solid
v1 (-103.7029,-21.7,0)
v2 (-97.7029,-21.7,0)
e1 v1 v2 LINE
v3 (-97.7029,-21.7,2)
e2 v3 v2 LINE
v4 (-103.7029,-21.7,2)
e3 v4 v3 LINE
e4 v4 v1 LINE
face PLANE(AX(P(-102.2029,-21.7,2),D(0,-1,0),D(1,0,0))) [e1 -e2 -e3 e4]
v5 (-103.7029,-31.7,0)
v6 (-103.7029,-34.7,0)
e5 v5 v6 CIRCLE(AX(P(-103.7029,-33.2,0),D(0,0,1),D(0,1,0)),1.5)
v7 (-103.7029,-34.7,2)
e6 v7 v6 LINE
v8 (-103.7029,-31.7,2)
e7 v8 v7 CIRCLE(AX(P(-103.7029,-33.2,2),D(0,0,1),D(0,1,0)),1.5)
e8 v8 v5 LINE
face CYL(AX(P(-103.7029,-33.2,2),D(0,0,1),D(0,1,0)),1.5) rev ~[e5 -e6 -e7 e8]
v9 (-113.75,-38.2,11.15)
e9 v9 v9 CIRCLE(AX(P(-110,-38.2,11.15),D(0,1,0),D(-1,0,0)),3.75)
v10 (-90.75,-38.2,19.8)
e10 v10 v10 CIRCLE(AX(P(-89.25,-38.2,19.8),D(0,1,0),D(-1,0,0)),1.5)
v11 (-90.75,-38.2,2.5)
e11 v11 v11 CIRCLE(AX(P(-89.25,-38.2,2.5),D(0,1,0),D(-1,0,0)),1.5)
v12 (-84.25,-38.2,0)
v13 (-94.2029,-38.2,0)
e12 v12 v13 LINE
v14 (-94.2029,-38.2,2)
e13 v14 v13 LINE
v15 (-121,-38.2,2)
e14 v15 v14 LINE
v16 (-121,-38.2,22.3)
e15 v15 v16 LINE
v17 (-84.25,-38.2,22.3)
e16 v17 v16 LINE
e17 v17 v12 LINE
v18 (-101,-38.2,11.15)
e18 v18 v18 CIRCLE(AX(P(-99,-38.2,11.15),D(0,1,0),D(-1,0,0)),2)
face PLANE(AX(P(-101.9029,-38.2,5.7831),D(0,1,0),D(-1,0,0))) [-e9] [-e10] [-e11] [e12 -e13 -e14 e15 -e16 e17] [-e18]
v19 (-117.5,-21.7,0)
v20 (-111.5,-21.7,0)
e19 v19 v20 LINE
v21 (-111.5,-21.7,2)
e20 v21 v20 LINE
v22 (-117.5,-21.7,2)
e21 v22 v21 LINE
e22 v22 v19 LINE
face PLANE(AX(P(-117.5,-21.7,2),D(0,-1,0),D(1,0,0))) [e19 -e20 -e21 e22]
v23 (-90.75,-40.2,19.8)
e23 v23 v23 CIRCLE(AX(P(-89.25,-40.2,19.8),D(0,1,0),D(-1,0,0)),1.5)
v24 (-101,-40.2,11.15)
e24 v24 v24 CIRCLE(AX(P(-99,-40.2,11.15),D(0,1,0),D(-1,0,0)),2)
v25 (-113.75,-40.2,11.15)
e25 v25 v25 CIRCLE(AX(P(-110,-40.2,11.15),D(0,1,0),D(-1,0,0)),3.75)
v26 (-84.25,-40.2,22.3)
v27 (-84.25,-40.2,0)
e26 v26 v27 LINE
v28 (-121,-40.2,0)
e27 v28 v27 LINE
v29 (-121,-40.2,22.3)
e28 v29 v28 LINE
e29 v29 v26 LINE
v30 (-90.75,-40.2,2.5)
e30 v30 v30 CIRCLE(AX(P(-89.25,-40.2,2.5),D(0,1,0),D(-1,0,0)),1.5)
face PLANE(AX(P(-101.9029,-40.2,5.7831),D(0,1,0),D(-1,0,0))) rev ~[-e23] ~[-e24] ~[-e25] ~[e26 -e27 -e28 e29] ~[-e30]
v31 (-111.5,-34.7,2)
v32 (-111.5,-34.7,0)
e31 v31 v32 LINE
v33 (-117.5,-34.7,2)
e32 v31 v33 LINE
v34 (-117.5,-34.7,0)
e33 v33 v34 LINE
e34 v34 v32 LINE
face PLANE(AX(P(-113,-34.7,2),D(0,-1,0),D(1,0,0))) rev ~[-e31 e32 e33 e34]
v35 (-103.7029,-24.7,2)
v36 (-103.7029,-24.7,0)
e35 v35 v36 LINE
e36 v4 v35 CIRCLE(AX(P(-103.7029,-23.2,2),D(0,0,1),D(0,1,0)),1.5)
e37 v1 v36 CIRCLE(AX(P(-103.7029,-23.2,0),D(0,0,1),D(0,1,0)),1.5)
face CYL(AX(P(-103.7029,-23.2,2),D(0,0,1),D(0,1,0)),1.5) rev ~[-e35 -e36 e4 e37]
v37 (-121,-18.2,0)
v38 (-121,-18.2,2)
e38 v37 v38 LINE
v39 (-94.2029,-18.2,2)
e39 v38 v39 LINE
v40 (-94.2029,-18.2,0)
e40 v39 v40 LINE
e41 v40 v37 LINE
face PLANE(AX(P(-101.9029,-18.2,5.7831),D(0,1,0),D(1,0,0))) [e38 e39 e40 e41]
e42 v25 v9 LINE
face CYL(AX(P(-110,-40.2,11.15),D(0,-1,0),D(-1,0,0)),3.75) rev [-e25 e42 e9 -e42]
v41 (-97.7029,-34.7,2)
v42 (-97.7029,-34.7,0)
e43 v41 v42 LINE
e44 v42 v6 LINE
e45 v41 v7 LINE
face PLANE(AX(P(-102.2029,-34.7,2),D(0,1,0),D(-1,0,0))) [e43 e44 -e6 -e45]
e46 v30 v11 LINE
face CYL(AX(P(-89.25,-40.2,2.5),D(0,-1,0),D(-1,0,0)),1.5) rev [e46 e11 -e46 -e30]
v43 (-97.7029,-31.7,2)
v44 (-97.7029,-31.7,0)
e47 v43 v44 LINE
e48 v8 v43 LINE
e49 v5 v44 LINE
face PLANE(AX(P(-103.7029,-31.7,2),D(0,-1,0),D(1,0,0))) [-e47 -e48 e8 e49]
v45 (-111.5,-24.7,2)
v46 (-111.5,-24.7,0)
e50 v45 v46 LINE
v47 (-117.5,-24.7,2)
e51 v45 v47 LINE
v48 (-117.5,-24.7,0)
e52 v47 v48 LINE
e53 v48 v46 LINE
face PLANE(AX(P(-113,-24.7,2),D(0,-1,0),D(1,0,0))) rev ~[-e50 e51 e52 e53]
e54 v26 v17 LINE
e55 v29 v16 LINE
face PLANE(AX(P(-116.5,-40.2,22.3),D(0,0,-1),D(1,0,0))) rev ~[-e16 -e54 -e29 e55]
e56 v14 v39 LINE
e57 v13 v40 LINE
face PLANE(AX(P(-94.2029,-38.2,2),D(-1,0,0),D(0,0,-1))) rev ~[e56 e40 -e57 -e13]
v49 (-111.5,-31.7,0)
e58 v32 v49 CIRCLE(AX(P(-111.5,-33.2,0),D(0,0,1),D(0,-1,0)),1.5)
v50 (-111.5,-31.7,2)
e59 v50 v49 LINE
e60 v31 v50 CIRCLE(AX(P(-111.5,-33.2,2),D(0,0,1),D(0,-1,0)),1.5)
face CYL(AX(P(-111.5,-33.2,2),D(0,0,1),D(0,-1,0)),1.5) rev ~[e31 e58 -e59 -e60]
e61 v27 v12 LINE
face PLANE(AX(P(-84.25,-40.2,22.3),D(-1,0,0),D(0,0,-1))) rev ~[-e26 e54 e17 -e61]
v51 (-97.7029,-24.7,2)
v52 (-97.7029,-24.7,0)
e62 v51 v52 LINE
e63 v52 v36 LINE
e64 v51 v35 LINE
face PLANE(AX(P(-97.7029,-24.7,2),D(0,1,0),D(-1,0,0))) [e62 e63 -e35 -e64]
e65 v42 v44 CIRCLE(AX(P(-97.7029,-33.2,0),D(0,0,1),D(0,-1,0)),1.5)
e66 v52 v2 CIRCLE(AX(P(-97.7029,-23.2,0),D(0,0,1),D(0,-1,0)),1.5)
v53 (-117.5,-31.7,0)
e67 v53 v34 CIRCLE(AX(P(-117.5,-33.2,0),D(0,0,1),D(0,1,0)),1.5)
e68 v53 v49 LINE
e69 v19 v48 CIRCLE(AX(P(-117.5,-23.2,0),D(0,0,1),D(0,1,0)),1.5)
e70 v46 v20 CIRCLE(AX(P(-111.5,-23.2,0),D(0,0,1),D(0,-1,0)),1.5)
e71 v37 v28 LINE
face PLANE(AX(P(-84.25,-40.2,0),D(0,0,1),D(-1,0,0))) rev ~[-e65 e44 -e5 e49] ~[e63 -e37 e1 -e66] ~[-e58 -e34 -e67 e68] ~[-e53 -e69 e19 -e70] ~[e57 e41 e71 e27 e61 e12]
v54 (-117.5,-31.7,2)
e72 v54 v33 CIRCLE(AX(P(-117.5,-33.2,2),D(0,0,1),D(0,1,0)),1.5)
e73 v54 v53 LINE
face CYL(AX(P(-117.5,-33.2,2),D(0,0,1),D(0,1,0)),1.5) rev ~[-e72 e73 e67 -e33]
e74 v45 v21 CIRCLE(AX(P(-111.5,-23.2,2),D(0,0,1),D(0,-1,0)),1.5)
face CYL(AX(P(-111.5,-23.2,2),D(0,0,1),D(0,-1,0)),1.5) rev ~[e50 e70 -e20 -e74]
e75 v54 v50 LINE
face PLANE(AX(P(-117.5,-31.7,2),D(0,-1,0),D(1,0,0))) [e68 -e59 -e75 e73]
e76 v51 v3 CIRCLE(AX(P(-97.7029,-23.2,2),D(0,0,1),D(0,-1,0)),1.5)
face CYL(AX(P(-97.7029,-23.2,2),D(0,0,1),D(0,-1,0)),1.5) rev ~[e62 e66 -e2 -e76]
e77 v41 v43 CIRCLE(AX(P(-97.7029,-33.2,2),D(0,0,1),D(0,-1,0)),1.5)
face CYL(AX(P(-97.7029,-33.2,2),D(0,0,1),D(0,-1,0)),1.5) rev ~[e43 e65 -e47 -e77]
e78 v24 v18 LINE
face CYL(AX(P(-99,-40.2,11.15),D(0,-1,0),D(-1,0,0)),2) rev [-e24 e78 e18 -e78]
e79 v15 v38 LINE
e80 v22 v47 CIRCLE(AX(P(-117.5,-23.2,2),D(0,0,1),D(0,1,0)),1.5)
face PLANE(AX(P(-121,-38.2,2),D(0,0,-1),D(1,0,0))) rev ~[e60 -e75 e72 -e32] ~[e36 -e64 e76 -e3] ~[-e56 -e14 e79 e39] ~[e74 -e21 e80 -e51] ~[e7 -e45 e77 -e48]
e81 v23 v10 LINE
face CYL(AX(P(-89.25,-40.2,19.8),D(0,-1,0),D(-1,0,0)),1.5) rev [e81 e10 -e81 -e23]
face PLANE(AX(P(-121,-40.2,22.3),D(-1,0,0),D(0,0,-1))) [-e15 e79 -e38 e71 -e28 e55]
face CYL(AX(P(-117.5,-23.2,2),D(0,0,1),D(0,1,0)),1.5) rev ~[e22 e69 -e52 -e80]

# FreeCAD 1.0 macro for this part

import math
import FreeCAD as App
import Part
import Sketcher

V = App.Vector


def add_polygon(sketch, points):
    """Adds a closed chain of lines whose ends are joined by coincident constraints."""
    first, n = sketch.GeometryCount, len(points)
    for a, b in zip(points, points[1:] + points[:1]):
        sketch.addGeometry(Part.LineSegment(App.Vector(*a, 0), App.Vector(*b, 0)), False)
    for i in range(n):
        sketch.addConstraint(Sketcher.Constraint("Coincident", first + i, 2, first + (i + 1) % n, 1))

doc = App.newDocument("Part")
body = doc.addObject("PartDesign::Body", "Body")

# Sketch on XZ plane
sketch1 = body.newObject("Sketcher::SketchObject", "Sketch")
sketch1.AttachmentSupport = (doc.getObject("XZ_Plane"), [""])
sketch1.MapMode = "FlatFace"
sketch1.AttachmentOffset = App.Placement(V(0, 0, 40.2), App.Rotation())
add_polygon(sketch1, [(-121, 22.3), (-84.25, 22.3), (-84.25, 0), (-121, 0)])  # lines 0-3
sketch1.addGeometry(Part.Circle(V(-89.25, 2.5, 0), V(0, 0, 1), 1.5), False)  # 4
sketch1.addGeometry(Part.Circle(V(-99, 11.15, 0), V(0, 0, 1), 2), False)  # 5
sketch1.addGeometry(Part.Circle(V(-89.25, 19.8, 0), V(0, 0, 1), 1.5), False)  # 6
sketch1.addGeometry(Part.Circle(V(-110, 11.15, 0), V(0, 0, 1), 3.75), False)  # 7
sketch1.addConstraint(Sketcher.Constraint("Horizontal", 0))
sketch1.addConstraint(Sketcher.Constraint("Vertical", 1))
sketch1.addConstraint(Sketcher.Constraint("Horizontal", 2))
sketch1.addConstraint(Sketcher.Constraint("Vertical", 3))
sketch1.addConstraint(Sketcher.Constraint("Equal", 4, 6))
sketch1.addConstraint(Sketcher.Constraint("PointOnObject", 1, 2, -1))
sketch1.addConstraint(Sketcher.Constraint("Horizontal", 5, 3, 7, 3))
sketch1.addConstraint(Sketcher.Constraint("Vertical", 4, 3, 6, 3))
sketch1.addConstraint(Sketcher.Constraint("Diameter", 4, 3.0))
sketch1.addConstraint(Sketcher.Constraint("Diameter", 5, 4.0))
sketch1.addConstraint(Sketcher.Constraint("Diameter", 7, 7.5))
sketch1.addConstraint(Sketcher.Constraint("DistanceY", 1, 2, 1, 1, 22.3))
sketch1.addConstraint(Sketcher.Constraint("DistanceX", 5, 3, -1, 1, 99.0))
sketch1.addConstraint(Sketcher.Constraint("DistanceX", 7, 3, -1, 1, 110.0))
sketch1.addConstraint(Sketcher.Constraint("DistanceX", 2, 2, -1, 1, 121.0))
sketch1.addConstraint(Sketcher.Constraint("DistanceX", 6, 3, 0, 2, 5.0))
sketch1.addConstraint(Sketcher.Constraint("DistanceX", 0, 1, 0, 2, 36.75))
sketch1.addConstraint(Sketcher.Constraint("DistanceY", -1, 1, 4, 3, 2.5))
sketch1.addConstraint(Sketcher.Constraint("DistanceY", -1, 1, 6, 3, 19.8))
sketch1.addConstraint(Sketcher.Constraint("DistanceY", -1, 1, 5, 3, 11.15))
pad1 = body.newObject("PartDesign::Pad", "Pad")
pad1.Profile = sketch1
pad1.Length = 2
pad1.Reversed = True

# Sketch on XZ plane
sketch2 = body.newObject("Sketcher::SketchObject", "Sketch001")
sketch2.AttachmentSupport = (doc.getObject("XZ_Plane"), [""])
sketch2.MapMode = "FlatFace"
sketch2.AttachmentOffset = App.Placement(V(0, 0, 38.2), App.Rotation())
add_polygon(sketch2, [(-94.2029, 2), (-94.2029, 0), (-121, 0), (-121, 2)])  # lines 0-3
sketch2.addConstraint(Sketcher.Constraint("Vertical", 0))
sketch2.addConstraint(Sketcher.Constraint("Horizontal", 1))
sketch2.addConstraint(Sketcher.Constraint("Vertical", 2))
sketch2.addConstraint(Sketcher.Constraint("Horizontal", 3))
sketch2.addConstraint(Sketcher.Constraint("PointOnObject", 0, 2, -1))
sketch2.addConstraint(Sketcher.Constraint("DistanceY", 0, 2, 0, 1, 2.0))
sketch2.addConstraint(Sketcher.Constraint("DistanceX", 1, 2, -1, 1, 121.0))
sketch2.addConstraint(Sketcher.Constraint("DistanceX", 1, 2, 1, 1, 26.797))
pad2 = body.newObject("PartDesign::Pad", "Pad001")
pad2.Profile = sketch2
pad2.Length = 20
pad2.Reversed = True

# Sketch on XY plane
sketch3 = body.newObject("Sketcher::SketchObject", "Sketch002")
sketch3.AttachmentSupport = (doc.getObject("XY_Plane"), [""])
sketch3.MapMode = "FlatFace"
sketch3.AttachmentOffset = App.Placement(V(0, 0, 2), App.Rotation())
sketch3.addGeometry(Part.LineSegment(V(-97.7029, -21.7, 0), V(-103.7029, -21.7, 0)), False)
sketch3.addGeometry(Part.ArcOfCircle(Part.Circle(V(-103.7029, -23.2, 0), V(0, 0, 1), 1.5), math.radians(90), math.radians(270)), False)
sketch3.addGeometry(Part.LineSegment(V(-103.7029, -24.7, 0), V(-97.7029, -24.7, 0)), False)
sketch3.addGeometry(Part.ArcOfCircle(Part.Circle(V(-97.7029, -23.2, 0), V(0, 0, 1), 1.5), math.radians(-90), math.radians(90)), False)
sketch3.addGeometry(Part.LineSegment(V(-103.7029, -34.7, 0), V(-97.7029, -34.7, 0)), False)
sketch3.addGeometry(Part.ArcOfCircle(Part.Circle(V(-97.7029, -33.2, 0), V(0, 0, 1), 1.5), math.radians(-90), math.radians(90)), False)
sketch3.addGeometry(Part.LineSegment(V(-97.7029, -31.7, 0), V(-103.7029, -31.7, 0)), False)
sketch3.addGeometry(Part.ArcOfCircle(Part.Circle(V(-103.7029, -33.2, 0), V(0, 0, 1), 1.5), math.radians(90), math.radians(270)), False)
sketch3.addGeometry(Part.LineSegment(V(-111.5, -21.7, 0), V(-117.5, -21.7, 0)), False)
sketch3.addGeometry(Part.ArcOfCircle(Part.Circle(V(-117.5, -23.2, 0), V(0, 0, 1), 1.5), math.radians(90), math.radians(270)), False)
sketch3.addGeometry(Part.LineSegment(V(-117.5, -24.7, 0), V(-111.5, -24.7, 0)), False)
sketch3.addGeometry(Part.ArcOfCircle(Part.Circle(V(-111.5, -23.2, 0), V(0, 0, 1), 1.5), math.radians(-90), math.radians(90)), False)
sketch3.addGeometry(Part.LineSegment(V(-111.5, -31.7, 0), V(-117.5, -31.7, 0)), False)
sketch3.addGeometry(Part.ArcOfCircle(Part.Circle(V(-117.5, -33.2, 0), V(0, 0, 1), 1.5), math.radians(90), math.radians(270)), False)
sketch3.addGeometry(Part.LineSegment(V(-117.5, -34.7, 0), V(-111.5, -34.7, 0)), False)
sketch3.addGeometry(Part.ArcOfCircle(Part.Circle(V(-111.5, -33.2, 0), V(0, 0, 1), 1.5), math.radians(-90), math.radians(90)), False)
sketch3.addConstraint(Sketcher.Constraint("Tangent", 0, 2, 1, 1))
sketch3.addConstraint(Sketcher.Constraint("Tangent", 1, 2, 2, 1))
sketch3.addConstraint(Sketcher.Constraint("Tangent", 2, 2, 3, 1))
sketch3.addConstraint(Sketcher.Constraint("Tangent", 3, 2, 0, 1))
sketch3.addConstraint(Sketcher.Constraint("Tangent", 4, 2, 5, 1))
sketch3.addConstraint(Sketcher.Constraint("Tangent", 5, 2, 6, 1))
sketch3.addConstraint(Sketcher.Constraint("Tangent", 6, 2, 7, 1))
sketch3.addConstraint(Sketcher.Constraint("Tangent", 7, 2, 4, 1))
sketch3.addConstraint(Sketcher.Constraint("Tangent", 8, 2, 9, 1))
sketch3.addConstraint(Sketcher.Constraint("Tangent", 9, 2, 10, 1))
sketch3.addConstraint(Sketcher.Constraint("Tangent", 10, 2, 11, 1))
sketch3.addConstraint(Sketcher.Constraint("Tangent", 11, 2, 8, 1))
sketch3.addConstraint(Sketcher.Constraint("Tangent", 12, 2, 13, 1))
sketch3.addConstraint(Sketcher.Constraint("Tangent", 13, 2, 14, 1))
sketch3.addConstraint(Sketcher.Constraint("Tangent", 14, 2, 15, 1))
sketch3.addConstraint(Sketcher.Constraint("Tangent", 15, 2, 12, 1))
sketch3.addConstraint(Sketcher.Constraint("Horizontal", 0))
sketch3.addConstraint(Sketcher.Constraint("Horizontal", 2))
sketch3.addConstraint(Sketcher.Constraint("Horizontal", 4))
sketch3.addConstraint(Sketcher.Constraint("Horizontal", 6))
sketch3.addConstraint(Sketcher.Constraint("Horizontal", 8))
sketch3.addConstraint(Sketcher.Constraint("Horizontal", 10))
sketch3.addConstraint(Sketcher.Constraint("Horizontal", 12))
sketch3.addConstraint(Sketcher.Constraint("Horizontal", 14))
sketch3.addConstraint(Sketcher.Constraint("Equal", 3, 5))
sketch3.addConstraint(Sketcher.Constraint("Equal", 7, 9))
sketch3.addConstraint(Sketcher.Constraint("Equal", 11, 13))
sketch3.addConstraint(Sketcher.Constraint("Horizontal", 3, 3, 9, 3))
sketch3.addConstraint(Sketcher.Constraint("Horizontal", 7, 3, 13, 3))
sketch3.addConstraint(Sketcher.Constraint("Vertical", 3, 3, 5, 3))
sketch3.addConstraint(Sketcher.Constraint("Vertical", 1, 3, 7, 3))
sketch3.addConstraint(Sketcher.Constraint("Vertical", 9, 3, 13, 3))
sketch3.addConstraint(Sketcher.Constraint("Vertical", 11, 3, 15, 3))
sketch3.addConstraint(Sketcher.Constraint("Equal", 6, 8))
sketch3.addConstraint(Sketcher.Constraint("Radius", 1, 1.5))
sketch3.addConstraint(Sketcher.Constraint("DistanceX", 0, 2, 0, 1, 6.0))
sketch3.addConstraint(Sketcher.Constraint("DistanceY", 5, 3, 3, 3, 10.0))
sketch3.addConstraint(Sketcher.Constraint("DistanceY", 1, 3, -1, 1, 23.2))
sketch3.addConstraint(Sketcher.Constraint("DistanceX", 9, 3, -1, 1, 117.5))
sketch3.addConstraint(Sketcher.Constraint("DistanceX", 1, 3, -1, 1, 103.703))
pocket1 = body.newObject("PartDesign::Pocket", "Pocket")
pocket1.Profile = sketch3
pocket1.Type = "ThroughAll"

doc.recompute()
